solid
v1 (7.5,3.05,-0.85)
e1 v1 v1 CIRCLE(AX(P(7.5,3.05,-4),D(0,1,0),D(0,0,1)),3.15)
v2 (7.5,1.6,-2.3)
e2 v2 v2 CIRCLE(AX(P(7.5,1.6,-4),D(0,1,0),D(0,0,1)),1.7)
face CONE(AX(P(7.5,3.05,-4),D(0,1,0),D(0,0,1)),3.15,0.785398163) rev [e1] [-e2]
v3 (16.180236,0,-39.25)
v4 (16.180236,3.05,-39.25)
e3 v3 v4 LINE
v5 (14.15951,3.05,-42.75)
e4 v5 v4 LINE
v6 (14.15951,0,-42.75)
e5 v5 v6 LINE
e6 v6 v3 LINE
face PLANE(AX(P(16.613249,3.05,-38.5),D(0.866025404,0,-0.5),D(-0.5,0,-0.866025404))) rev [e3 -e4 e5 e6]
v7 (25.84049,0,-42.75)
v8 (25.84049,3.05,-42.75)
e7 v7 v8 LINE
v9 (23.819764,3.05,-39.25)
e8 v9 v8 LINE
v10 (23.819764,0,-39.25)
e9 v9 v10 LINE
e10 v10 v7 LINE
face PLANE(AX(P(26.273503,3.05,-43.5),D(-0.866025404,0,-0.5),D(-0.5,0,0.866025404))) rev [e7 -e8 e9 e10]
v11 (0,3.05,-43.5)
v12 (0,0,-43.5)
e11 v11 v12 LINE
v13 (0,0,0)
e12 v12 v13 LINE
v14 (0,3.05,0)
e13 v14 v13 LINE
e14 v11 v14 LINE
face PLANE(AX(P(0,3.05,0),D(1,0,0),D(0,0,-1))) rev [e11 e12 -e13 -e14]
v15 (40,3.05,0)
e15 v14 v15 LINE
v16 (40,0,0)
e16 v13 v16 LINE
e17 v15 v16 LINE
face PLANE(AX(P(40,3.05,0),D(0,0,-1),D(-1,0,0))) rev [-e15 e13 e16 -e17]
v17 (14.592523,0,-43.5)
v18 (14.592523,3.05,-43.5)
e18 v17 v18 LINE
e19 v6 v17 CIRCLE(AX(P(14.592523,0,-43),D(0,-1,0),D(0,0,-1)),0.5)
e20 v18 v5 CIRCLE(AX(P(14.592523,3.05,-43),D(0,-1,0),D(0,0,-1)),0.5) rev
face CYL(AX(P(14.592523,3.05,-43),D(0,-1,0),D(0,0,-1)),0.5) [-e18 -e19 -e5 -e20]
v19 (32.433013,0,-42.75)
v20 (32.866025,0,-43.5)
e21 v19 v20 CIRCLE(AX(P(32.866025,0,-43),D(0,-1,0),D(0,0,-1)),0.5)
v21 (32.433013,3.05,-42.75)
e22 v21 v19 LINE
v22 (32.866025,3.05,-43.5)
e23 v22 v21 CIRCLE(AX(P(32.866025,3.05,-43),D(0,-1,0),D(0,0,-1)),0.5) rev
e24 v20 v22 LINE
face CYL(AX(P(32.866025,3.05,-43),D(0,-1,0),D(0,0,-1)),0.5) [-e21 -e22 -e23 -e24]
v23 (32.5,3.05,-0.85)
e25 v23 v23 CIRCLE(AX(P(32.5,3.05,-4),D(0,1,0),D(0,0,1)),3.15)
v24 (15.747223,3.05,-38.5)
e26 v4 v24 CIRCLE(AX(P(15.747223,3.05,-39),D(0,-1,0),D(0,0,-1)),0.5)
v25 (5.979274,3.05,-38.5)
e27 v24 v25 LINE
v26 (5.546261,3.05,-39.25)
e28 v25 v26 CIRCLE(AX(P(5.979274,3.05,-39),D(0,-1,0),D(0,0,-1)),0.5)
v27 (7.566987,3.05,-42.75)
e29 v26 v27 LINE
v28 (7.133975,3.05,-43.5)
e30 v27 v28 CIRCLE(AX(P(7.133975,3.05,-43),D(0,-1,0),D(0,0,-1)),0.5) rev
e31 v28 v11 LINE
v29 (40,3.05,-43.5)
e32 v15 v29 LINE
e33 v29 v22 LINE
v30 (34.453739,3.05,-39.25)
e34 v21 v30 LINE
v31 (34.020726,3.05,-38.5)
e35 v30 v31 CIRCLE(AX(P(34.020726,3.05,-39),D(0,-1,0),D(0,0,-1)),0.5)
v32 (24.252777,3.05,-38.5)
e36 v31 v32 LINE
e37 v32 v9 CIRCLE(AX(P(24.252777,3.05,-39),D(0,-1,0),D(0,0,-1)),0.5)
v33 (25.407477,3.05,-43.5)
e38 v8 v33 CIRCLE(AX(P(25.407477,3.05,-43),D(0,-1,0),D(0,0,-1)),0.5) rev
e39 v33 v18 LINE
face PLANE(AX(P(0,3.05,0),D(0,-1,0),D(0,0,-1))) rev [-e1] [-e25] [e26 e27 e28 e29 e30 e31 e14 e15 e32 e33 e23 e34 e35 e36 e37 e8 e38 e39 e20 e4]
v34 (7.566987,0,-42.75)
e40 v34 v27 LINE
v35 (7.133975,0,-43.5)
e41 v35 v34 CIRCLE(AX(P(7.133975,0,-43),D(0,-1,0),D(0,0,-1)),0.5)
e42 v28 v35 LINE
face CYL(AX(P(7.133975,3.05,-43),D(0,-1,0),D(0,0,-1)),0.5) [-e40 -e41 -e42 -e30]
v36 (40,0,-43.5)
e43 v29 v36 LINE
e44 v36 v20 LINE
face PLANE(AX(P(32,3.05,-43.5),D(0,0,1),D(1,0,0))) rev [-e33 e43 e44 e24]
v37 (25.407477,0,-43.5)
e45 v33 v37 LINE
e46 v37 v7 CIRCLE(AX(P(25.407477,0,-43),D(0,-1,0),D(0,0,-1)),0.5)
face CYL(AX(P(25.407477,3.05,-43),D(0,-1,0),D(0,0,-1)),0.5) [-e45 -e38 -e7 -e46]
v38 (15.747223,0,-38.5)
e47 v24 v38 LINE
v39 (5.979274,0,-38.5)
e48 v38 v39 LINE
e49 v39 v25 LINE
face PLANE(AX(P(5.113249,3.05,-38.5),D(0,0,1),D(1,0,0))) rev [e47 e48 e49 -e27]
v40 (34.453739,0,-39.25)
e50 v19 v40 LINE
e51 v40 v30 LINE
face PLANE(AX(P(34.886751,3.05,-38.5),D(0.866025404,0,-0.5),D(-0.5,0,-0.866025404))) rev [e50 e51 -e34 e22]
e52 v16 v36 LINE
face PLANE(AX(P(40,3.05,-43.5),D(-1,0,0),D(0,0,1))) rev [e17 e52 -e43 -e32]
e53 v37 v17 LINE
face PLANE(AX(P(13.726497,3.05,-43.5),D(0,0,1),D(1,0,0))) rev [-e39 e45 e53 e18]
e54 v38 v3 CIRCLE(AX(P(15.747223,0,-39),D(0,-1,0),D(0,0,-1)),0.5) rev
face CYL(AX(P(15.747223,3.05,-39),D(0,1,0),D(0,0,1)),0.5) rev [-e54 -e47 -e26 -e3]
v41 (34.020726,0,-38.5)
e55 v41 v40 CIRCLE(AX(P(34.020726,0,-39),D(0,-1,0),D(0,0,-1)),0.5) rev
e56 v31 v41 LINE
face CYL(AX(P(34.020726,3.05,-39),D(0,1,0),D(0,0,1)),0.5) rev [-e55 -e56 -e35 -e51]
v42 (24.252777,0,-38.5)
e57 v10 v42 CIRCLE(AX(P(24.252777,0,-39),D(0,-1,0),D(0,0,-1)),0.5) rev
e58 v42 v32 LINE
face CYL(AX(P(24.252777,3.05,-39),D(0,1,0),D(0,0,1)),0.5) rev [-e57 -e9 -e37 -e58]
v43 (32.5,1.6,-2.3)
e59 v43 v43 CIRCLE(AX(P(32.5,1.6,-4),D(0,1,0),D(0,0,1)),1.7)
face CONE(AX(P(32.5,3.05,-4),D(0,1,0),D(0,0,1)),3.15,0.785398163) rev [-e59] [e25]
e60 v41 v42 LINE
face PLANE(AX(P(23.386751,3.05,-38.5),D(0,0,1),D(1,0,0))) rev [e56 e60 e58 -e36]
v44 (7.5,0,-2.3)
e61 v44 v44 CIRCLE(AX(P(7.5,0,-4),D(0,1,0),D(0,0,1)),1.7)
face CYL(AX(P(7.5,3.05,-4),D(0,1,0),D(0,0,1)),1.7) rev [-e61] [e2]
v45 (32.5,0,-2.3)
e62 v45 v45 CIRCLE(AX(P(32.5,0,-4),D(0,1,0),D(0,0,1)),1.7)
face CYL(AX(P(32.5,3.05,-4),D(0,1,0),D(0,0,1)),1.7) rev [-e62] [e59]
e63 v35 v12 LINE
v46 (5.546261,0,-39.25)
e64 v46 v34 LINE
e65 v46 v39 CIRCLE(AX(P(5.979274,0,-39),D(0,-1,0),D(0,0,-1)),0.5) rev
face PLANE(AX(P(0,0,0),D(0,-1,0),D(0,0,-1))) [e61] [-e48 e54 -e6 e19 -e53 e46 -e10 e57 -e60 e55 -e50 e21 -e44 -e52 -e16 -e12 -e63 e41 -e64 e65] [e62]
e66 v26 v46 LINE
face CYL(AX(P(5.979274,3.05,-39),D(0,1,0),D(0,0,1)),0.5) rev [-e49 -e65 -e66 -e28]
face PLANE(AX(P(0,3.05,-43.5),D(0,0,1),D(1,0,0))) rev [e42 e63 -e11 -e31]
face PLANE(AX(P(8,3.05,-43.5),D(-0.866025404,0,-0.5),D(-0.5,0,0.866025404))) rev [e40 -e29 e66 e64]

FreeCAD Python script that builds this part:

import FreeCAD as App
import Part
import Sketcher
from FreeCAD import Vector
Q = App.Units.Quantity


def edges_at(feature, points):
    """Names of the edges that pass closest to the given points."""
    edges = feature.Shape.Edges
    near = lambda p: min(range(len(edges)), key=lambda i: edges[i].distToShape(Part.Vertex(*p))[0])
    return sorted({f"Edge{near(p) + 1}" for p in points})

doc = App.newDocument("Part")
body = doc.addObject("PartDesign::Body", "Body")

# Sketch on XZ plane
sketch1 = body.newObject("Sketcher::SketchObject", "Sketch")
sketch1.AttachmentSupport = (doc.getObject("XZ_Plane"), [""])
sketch1.MapMode = "FlatFace"
sketch1.addGeometry(Part.LineSegment(Vector(0, -43.5, 0), Vector(0, 0, 0)), False)
sketch1.addGeometry(Part.LineSegment(Vector(0, 0, 0), Vector(40, 0, 0)), False)
sketch1.addGeometry(Part.LineSegment(Vector(40, 0, 0), Vector(40, -43.5, 0)), False)
sketch1.addGeometry(Part.LineSegment(Vector(40, -43.5, 0), Vector(32, -43.5, 0)), False)
sketch1.addGeometry(Part.LineSegment(Vector(32, -43.5, 0), Vector(34.886751, -38.5, 0)), False)
sketch1.addGeometry(Part.LineSegment(Vector(34.886751, -38.5, 0), Vector(23.386751, -38.5, 0)), False)
sketch1.addGeometry(Part.LineSegment(Vector(23.386751, -38.5, 0), Vector(26.273503, -43.5, 0)), False)
sketch1.addGeometry(Part.LineSegment(Vector(26.273503, -43.5, 0), Vector(13.726497, -43.5, 0)), False)
sketch1.addGeometry(Part.LineSegment(Vector(13.726497, -43.5, 0), Vector(16.613249, -38.5, 0)), False)
sketch1.addGeometry(Part.LineSegment(Vector(16.613249, -38.5, 0), Vector(5.113249, -38.5, 0)), False)
sketch1.addGeometry(Part.LineSegment(Vector(5.113249, -38.5, 0), Vector(8, -43.5, 0)), False)
sketch1.addGeometry(Part.LineSegment(Vector(8, -43.5, 0), Vector(0, -43.5, 0)), False)
sketch1.addConstraint(Sketcher.Constraint("Coincident", 0, 2, 1, 1))
sketch1.addConstraint(Sketcher.Constraint("Coincident", 1, 2, 2, 1))
sketch1.addConstraint(Sketcher.Constraint("Coincident", 2, 2, 3, 1))
sketch1.addConstraint(Sketcher.Constraint("Coincident", 3, 2, 4, 1))
sketch1.addConstraint(Sketcher.Constraint("Coincident", 4, 2, 5, 1))
sketch1.addConstraint(Sketcher.Constraint("Coincident", 5, 2, 6, 1))
sketch1.addConstraint(Sketcher.Constraint("Coincident", 6, 2, 7, 1))
sketch1.addConstraint(Sketcher.Constraint("Coincident", 7, 2, 8, 1))
sketch1.addConstraint(Sketcher.Constraint("Coincident", 8, 2, 9, 1))
sketch1.addConstraint(Sketcher.Constraint("Coincident", 9, 2, 10, 1))
sketch1.addConstraint(Sketcher.Constraint("Coincident", 10, 2, 11, 1))
sketch1.addConstraint(Sketcher.Constraint("Coincident", 11, 2, 0, 1))
sketch1.addConstraint(Sketcher.Constraint("Vertical", 0))
sketch1.addConstraint(Sketcher.Constraint("Horizontal", 1))
sketch1.addConstraint(Sketcher.Constraint("Vertical", 2))
sketch1.addConstraint(Sketcher.Constraint("Horizontal", 3))
sketch1.addConstraint(Sketcher.Constraint("Horizontal", 5))
sketch1.addConstraint(Sketcher.Constraint("Horizontal", 7))
sketch1.addConstraint(Sketcher.Constraint("Horizontal", 9))
sketch1.addConstraint(Sketcher.Constraint("Horizontal", 11))
sketch1.addConstraint(Sketcher.Constraint("Coincident", 0, 2, -1, 1))
sketch1.addConstraint(Sketcher.Constraint("Parallel", 4, 8))
sketch1.addConstraint(Sketcher.Constraint("Parallel", 6, 10))
sketch1.addConstraint(Sketcher.Constraint("Horizontal", 3, 2, 6, 2))
sketch1.addConstraint(Sketcher.Constraint("Horizontal", 5, 2, 8, 2))
sketch1.addConstraint(Sketcher.Constraint("Horizontal", 7, 2, 10, 2))
sketch1.addConstraint(Sketcher.Constraint("Equal", 5, 9))
sketch1.addConstraint(Sketcher.Constraint("Equal", 3, 11))
sketch1.addConstraint(Sketcher.Constraint("Equal", 4, 6))
sketch1.addConstraint(Sketcher.Constraint("DistanceX", 1, 1, 1, 2, Q("40 mm")))
sketch1.addConstraint(Sketcher.Constraint("DistanceX", 3, 2, 3, 1, Q("8 mm")))
sketch1.addConstraint(Sketcher.Constraint("Angle", 4, Q("60 deg")))
sketch1.addConstraint(Sketcher.Constraint("DistanceX", 5, 2, 5, 1, Q("11.5 mm")))
sketch1.addConstraint(Sketcher.Constraint("DistanceY", 0, 1, 0, 2, Q("43.5 mm")))
sketch1.addConstraint(Sketcher.Constraint("DistanceY", 3, 2, 4, 2, Q("5 mm")))
pad1 = body.newObject("PartDesign::Pad", "Pad")
pad1.Profile = sketch1
pad1.Length = 3.05
pad1.Reversed = True
doc.recompute()

fillet = body.newObject("PartDesign::Fillet", "Fillet")
fillet.Base = (pad1, edges_at(pad1, [
    (8, 1.525, -43.5),
    (5.113, 1.525, -38.5),
    (16.613, 1.525, -38.5),
    (13.726, 1.525, -43.5),
    (26.274, 1.525, -43.5),
    (23.387, 1.525, -38.5),
    (34.887, 1.525, -38.5),
    (32, 1.525, -43.5),
]))
fillet.Radius = 0.5

# Sketch on YZ plane
sketch2 = body.newObject("Sketcher::SketchObject", "Sketch001")
sketch2.AttachmentSupport = (doc.getObject("YZ_Plane"), [""])
sketch2.MapMode = "FlatFace"
sketch2.AttachmentOffset = App.Placement(Vector(0, 0, 7.5), App.Rotation())
sketch2.addGeometry(Part.LineSegment(Vector(0, -4, 0), Vector(3.05, -4, 0)), False)
sketch2.addGeometry(Part.LineSegment(Vector(3.05, -4, 0), Vector(3.05, -0.85, 0)), False)
sketch2.addGeometry(Part.LineSegment(Vector(3.05, -0.85, 0), Vector(1.6, -2.3, 0)), False)
sketch2.addGeometry(Part.LineSegment(Vector(1.6, -2.3, 0), Vector(0, -2.3, 0)), False)
sketch2.addGeometry(Part.LineSegment(Vector(0, -2.3, 0), Vector(0, -4, 0)), False)
sketch2.addGeometry(Part.LineSegment(Vector(3.05, -4, 0), Vector(0, -4, 0)), True)  # axis
sketch2.addConstraint(Sketcher.Constraint("Coincident", 0, 2, 1, 1))
sketch2.addConstraint(Sketcher.Constraint("Coincident", 1, 2, 2, 1))
sketch2.addConstraint(Sketcher.Constraint("Coincident", 2, 2, 3, 1))
sketch2.addConstraint(Sketcher.Constraint("Coincident", 3, 2, 4, 1))
sketch2.addConstraint(Sketcher.Constraint("Coincident", 4, 2, 0, 1))
sketch2.addConstraint(Sketcher.Constraint("Horizontal", 0))
sketch2.addConstraint(Sketcher.Constraint("Vertical", 1))
sketch2.addConstraint(Sketcher.Constraint("Horizontal", 3))
sketch2.addConstraint(Sketcher.Constraint("Vertical", 4))
sketch2.addConstraint(Sketcher.Constraint("Horizontal", 5))
sketch2.addConstraint(Sketcher.Constraint("Coincident", 5, 1, 0, 2))
sketch2.addConstraint(Sketcher.Constraint("PointOnObject", 3, 2, -2))
sketch2.addConstraint(Sketcher.Constraint("PointOnObject", 5, 2, -2))
sketch2.addConstraint(Sketcher.Constraint("Angle", 2, Q("-135 deg")))
sketch2.addConstraint(Sketcher.Constraint("DistanceX", 3, 2, 3, 1, Q("1.6 mm")))
sketch2.addConstraint(Sketcher.Constraint("DistanceY", 4, 2, 4, 1, Q("1.7 mm")))
sketch2.addConstraint(Sketcher.Constraint("DistanceY", 0, 2, -1, 1, Q("4 mm")))
sketch2.addConstraint(Sketcher.Constraint("DistanceX", 0, 1, 0, 2, Q("3.05 mm")))
groove = body.newObject("PartDesign::Groove", "Groove")
groove.Profile = sketch2
groove.ReferenceAxis = (sketch2, ["Axis0"])
groove.Angle = 360
doc.recompute()

linearpattern = body.newObject("PartDesign::LinearPattern", "LinearPattern")
linearpattern.Originals = [groove]
linearpattern.Direction = (doc.getObject("X_Axis"), [""])
linearpattern.Mode = "offset"
linearpattern.Offset = 25
linearpattern.Occurrences = 2
body.Tip = linearpattern

doc.recompute()
